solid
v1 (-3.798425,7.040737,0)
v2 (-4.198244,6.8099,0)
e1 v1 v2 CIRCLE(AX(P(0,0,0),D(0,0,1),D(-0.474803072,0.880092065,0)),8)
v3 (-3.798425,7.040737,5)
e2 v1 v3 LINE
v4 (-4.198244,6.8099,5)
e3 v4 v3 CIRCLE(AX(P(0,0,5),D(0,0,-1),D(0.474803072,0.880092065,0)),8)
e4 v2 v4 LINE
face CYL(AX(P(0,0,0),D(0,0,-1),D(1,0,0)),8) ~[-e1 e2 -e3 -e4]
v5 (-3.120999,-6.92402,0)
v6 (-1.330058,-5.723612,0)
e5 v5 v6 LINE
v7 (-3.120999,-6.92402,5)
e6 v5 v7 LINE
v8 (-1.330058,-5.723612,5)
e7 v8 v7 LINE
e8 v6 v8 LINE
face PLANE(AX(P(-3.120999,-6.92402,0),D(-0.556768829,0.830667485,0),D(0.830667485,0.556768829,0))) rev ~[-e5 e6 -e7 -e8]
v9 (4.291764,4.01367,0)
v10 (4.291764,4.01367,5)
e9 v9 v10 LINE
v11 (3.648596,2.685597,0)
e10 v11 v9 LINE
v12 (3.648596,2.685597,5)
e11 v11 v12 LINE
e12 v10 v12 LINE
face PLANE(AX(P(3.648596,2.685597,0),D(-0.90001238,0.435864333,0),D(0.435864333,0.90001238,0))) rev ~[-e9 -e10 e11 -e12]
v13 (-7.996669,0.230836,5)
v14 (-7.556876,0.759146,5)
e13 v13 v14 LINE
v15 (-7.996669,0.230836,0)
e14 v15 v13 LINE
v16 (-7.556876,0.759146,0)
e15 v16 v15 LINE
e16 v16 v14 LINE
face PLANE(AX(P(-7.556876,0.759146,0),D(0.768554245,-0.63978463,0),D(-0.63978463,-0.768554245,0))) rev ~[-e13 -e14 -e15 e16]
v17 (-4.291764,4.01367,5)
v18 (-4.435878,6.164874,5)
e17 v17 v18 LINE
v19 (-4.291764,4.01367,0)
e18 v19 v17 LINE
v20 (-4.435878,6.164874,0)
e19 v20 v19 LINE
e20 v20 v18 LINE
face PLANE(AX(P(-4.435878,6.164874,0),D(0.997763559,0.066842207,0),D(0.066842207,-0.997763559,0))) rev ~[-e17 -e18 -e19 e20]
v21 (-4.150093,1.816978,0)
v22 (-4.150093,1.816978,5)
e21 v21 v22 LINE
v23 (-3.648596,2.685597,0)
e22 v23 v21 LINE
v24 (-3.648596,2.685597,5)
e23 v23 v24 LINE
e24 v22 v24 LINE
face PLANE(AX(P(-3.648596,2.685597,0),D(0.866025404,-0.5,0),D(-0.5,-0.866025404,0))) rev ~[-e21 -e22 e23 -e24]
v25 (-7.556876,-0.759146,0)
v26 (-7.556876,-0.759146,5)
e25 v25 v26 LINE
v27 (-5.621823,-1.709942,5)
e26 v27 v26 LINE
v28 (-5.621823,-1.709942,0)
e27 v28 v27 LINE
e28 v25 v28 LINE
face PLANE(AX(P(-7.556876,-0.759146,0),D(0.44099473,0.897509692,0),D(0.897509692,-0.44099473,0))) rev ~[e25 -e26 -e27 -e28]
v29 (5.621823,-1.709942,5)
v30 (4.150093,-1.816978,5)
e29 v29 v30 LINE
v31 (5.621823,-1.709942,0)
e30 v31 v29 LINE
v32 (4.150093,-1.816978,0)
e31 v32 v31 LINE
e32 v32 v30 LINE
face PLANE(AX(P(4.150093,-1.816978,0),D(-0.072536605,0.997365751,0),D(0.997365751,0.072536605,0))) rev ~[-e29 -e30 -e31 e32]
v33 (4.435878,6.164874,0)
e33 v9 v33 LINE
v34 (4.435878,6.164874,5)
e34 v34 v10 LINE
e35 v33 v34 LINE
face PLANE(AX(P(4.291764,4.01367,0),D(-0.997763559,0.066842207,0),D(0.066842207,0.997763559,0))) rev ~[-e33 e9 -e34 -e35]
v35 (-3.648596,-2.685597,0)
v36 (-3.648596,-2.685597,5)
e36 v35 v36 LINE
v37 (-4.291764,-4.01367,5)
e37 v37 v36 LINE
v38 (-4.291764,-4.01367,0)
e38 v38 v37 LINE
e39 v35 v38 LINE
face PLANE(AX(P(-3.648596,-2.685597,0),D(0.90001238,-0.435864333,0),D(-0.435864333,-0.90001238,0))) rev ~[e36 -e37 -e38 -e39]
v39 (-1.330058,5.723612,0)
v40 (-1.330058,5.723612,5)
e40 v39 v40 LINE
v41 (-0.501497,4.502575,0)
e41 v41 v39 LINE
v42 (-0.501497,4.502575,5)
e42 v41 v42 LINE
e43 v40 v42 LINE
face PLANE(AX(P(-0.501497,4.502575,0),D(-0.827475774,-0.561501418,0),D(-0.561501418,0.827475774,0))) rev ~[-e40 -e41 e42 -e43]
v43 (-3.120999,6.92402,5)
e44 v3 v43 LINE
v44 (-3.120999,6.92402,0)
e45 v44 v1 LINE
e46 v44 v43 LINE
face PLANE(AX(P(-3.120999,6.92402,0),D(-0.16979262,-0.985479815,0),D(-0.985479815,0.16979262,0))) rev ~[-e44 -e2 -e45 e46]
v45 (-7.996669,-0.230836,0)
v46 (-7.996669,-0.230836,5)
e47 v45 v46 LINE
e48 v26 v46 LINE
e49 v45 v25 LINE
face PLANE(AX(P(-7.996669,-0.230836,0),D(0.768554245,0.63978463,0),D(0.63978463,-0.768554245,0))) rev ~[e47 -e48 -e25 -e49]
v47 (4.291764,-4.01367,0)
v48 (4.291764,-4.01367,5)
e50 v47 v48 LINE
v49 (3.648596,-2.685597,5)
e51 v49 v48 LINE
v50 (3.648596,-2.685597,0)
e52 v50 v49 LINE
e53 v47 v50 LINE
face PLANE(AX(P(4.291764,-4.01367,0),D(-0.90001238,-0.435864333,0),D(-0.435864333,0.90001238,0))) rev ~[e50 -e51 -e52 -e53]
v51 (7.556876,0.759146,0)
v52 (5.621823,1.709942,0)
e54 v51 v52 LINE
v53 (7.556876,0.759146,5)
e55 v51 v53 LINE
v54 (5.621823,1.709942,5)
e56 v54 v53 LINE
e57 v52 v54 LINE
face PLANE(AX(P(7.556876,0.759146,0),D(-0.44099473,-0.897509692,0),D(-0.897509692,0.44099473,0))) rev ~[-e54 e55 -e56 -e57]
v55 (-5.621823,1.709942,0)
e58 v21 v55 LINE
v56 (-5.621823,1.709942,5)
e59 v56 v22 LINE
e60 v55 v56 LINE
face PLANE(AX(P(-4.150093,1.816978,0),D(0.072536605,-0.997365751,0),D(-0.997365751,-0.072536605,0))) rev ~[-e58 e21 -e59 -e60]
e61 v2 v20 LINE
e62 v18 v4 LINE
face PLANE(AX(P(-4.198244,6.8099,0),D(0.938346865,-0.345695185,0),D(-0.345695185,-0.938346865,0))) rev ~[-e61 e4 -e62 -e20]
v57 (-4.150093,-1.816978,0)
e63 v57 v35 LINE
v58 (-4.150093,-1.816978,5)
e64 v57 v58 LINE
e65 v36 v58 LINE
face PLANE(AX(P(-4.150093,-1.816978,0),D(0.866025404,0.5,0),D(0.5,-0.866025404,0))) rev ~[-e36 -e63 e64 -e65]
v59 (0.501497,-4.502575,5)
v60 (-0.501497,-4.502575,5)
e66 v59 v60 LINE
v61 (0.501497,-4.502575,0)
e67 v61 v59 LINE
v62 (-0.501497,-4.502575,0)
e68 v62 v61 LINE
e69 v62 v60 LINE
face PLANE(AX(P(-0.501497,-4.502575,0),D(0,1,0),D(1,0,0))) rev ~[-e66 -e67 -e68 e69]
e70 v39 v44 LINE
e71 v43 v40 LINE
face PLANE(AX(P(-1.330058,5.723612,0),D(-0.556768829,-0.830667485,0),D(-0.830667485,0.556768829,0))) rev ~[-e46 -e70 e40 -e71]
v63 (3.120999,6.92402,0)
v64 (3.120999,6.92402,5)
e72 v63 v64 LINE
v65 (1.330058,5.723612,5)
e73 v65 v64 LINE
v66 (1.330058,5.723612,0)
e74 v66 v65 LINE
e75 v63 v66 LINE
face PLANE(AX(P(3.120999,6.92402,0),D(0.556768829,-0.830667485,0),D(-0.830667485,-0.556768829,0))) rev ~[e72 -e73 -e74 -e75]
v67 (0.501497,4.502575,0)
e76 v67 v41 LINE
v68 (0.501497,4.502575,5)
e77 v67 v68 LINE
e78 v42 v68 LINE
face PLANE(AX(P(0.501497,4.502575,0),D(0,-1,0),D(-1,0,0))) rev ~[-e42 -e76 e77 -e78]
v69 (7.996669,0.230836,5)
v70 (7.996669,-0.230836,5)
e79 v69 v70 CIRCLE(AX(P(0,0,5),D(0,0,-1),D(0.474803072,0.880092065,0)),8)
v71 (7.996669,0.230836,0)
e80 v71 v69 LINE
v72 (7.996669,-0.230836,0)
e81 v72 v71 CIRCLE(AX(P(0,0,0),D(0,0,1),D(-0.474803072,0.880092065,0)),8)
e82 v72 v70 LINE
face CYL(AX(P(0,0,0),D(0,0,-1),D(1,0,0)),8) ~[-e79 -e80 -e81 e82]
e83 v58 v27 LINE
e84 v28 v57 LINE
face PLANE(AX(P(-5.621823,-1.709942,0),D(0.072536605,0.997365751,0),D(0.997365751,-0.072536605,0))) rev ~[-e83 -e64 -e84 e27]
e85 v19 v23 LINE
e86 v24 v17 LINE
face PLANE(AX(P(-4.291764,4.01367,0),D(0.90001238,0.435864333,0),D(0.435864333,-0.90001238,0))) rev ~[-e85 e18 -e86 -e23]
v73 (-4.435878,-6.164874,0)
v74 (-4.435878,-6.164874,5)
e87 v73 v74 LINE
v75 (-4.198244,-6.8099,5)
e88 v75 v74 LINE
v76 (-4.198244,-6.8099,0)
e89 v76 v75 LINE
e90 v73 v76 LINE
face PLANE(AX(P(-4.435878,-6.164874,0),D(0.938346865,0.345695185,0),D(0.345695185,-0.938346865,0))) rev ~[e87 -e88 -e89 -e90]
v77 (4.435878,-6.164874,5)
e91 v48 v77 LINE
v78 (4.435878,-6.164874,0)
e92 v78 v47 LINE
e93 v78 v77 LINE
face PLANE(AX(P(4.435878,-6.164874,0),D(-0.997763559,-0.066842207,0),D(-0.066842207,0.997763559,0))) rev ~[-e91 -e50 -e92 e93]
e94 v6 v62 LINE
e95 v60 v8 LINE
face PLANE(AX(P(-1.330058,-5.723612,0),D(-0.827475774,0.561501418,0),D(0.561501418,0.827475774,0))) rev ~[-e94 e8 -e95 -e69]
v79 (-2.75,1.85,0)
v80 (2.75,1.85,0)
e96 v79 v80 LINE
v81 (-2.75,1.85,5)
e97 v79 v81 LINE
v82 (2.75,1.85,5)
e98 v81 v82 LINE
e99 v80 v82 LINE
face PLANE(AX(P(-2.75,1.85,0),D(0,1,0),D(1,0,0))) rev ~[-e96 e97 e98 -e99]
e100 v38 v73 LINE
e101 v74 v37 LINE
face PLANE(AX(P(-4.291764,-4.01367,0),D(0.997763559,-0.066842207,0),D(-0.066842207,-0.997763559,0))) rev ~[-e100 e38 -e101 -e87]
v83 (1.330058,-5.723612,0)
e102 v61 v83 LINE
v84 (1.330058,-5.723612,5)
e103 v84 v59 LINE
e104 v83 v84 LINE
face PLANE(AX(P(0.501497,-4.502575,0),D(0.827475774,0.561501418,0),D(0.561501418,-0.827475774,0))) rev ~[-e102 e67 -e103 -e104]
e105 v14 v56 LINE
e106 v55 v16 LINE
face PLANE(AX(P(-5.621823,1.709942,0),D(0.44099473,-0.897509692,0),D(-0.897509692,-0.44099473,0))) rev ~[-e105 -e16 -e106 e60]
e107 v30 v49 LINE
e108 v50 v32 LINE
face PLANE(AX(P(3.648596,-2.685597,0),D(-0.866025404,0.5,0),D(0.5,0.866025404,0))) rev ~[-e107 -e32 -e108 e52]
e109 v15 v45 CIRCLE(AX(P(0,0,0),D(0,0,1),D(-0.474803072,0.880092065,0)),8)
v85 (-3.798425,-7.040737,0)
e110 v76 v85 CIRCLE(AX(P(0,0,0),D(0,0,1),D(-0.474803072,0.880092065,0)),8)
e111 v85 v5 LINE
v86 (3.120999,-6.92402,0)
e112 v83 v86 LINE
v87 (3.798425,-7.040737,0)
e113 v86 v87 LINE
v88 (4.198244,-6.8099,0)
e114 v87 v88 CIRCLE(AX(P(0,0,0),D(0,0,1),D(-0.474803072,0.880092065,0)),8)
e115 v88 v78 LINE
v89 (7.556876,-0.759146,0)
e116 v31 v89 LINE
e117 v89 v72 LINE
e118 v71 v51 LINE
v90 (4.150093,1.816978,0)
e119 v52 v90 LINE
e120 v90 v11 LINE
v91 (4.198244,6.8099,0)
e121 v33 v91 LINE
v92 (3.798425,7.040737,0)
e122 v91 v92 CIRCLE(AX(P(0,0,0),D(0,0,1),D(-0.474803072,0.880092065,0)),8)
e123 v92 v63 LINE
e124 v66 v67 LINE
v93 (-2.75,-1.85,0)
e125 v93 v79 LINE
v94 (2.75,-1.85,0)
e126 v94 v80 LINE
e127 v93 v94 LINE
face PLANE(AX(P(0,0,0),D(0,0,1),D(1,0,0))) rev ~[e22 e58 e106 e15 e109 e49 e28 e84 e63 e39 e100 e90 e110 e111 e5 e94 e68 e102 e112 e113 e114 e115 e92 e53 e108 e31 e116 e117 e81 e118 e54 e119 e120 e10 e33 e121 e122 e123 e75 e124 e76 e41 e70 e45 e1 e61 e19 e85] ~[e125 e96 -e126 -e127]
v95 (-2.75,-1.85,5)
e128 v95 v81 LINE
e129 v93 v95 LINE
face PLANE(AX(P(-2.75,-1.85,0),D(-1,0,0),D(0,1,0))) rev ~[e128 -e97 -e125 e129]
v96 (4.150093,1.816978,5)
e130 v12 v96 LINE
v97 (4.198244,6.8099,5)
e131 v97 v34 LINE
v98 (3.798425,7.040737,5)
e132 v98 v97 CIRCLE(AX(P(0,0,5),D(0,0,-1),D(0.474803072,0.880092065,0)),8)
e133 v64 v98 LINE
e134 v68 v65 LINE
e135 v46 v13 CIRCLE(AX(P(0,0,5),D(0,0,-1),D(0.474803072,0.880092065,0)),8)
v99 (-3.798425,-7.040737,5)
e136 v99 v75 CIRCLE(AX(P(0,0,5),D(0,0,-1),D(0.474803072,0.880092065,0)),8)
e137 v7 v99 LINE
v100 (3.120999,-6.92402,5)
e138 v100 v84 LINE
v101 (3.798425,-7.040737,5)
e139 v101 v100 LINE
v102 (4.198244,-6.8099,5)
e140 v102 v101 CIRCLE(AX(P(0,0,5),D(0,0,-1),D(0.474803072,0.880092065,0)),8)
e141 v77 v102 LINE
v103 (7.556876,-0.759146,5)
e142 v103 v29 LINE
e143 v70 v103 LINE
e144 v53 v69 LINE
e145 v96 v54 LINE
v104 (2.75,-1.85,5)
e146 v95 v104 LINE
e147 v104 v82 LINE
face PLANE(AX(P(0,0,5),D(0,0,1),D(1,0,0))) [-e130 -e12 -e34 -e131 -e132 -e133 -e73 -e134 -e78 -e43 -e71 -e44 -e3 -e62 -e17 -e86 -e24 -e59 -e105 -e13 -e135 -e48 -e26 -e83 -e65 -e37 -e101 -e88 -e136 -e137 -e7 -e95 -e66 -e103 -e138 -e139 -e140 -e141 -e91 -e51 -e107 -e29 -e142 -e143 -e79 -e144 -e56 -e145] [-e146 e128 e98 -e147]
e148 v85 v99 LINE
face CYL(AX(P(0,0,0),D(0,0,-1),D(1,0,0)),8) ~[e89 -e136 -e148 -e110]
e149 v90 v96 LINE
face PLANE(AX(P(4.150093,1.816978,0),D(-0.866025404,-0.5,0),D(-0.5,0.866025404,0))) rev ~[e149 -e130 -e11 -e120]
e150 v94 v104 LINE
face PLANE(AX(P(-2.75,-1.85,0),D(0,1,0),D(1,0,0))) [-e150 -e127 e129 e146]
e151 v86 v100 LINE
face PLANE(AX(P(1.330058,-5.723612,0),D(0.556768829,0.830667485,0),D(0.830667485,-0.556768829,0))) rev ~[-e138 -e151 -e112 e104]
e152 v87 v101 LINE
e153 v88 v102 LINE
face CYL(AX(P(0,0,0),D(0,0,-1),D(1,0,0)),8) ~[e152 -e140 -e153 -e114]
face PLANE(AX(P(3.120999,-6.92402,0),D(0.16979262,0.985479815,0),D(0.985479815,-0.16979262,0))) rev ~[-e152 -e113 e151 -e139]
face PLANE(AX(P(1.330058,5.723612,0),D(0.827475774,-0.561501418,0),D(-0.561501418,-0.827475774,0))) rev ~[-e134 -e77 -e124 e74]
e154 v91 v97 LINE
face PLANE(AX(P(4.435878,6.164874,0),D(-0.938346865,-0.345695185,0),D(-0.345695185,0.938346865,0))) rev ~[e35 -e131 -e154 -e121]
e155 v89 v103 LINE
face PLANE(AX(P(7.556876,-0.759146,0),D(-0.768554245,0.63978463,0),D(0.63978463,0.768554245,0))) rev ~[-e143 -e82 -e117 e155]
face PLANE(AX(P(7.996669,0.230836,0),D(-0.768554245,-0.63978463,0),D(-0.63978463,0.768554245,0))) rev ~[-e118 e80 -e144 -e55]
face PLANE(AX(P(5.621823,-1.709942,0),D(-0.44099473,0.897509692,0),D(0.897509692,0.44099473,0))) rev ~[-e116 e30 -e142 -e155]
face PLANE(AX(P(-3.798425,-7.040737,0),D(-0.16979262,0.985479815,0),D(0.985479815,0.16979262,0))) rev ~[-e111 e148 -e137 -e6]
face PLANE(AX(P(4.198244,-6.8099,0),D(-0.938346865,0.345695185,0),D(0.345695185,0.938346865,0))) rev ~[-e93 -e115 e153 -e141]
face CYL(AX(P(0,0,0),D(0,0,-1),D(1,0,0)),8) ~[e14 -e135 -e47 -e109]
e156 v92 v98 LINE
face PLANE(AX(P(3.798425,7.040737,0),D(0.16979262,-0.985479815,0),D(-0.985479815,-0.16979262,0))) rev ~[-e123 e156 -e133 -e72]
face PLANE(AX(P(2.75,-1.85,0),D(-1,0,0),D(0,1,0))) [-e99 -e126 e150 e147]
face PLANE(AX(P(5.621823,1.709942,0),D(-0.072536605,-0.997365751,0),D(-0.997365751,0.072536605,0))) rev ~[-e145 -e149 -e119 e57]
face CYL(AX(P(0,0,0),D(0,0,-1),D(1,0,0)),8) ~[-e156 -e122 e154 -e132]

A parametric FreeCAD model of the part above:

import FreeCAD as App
import Part
import Sketcher
from FreeCAD import Vector
Q = App.Units.Quantity

doc = App.newDocument("Part")
body = doc.addObject("PartDesign::Body", "Body")

sketch1 = body.newObject("Sketcher::SketchObject", "Sketch")
sketch1.AttachmentSupport = (doc.getObject("XY_Plane"), [""])
sketch1.MapMode = "FlatFace"
sketch1.addGeometry([
    Part.Circle(Vector(0, 0, 0), Vector(0, 0, 1), 8),
    Part.LineSegment(Vector(2.8, -1.9, 0), Vector(-2.8, -1.9, 0)),
    Part.LineSegment(Vector(-2.8, -1.9, 0), Vector(-2.8, 1.9, 0)),
    Part.LineSegment(Vector(-2.8, 1.9, 0), Vector(2.8, 1.9, 0)),
    Part.LineSegment(Vector(2.8, 1.9, 0), Vector(2.8, -1.9, 0)),
], False)
sketch1.addConstraint([
    Sketcher.Constraint("Coincident", 1, 2, 2, 1),
    Sketcher.Constraint("Coincident", 2, 2, 3, 1),
    Sketcher.Constraint("Coincident", 3, 2, 4, 1),
    Sketcher.Constraint("Coincident", 4, 2, 1, 1),
    Sketcher.Constraint("Horizontal", 1),
    Sketcher.Constraint("Vertical", 2),
    Sketcher.Constraint("Horizontal", 3),
    Sketcher.Constraint("Vertical", 4),
    Sketcher.Constraint("Coincident", 0, 3, -1, 1),
    Sketcher.Constraint("Symmetric", 1, 2, 3, 2, -1, 1),
    Sketcher.Constraint("Diameter", 0, Q("16 mm")),
    Sketcher.Constraint("DistanceX", 1, 2, 1, 1, Q("5.5 mm")),
    Sketcher.Constraint("DistanceY", 2, 1, 2, 2, Q("3.7 mm")),
])
pad1 = body.newObject("PartDesign::Pad", "Pad")
pad1.Profile = sketch1
pad1.Length = 5

sketch2 = body.newObject("Sketcher::SketchObject", "Sketch001")
sketch2.AttachmentSupport = (doc.getObject("XY_Plane"), [""])
sketch2.MapMode = "FlatFace"
sketch2.addGeometry([
    Part.LineSegment(Vector(0, 25, 0), Vector(-7.3, 22.2, 0)),
    Part.LineSegment(Vector(-7.3, 22.2, 0), Vector(-3.8, 7, 0)),
    Part.LineSegment(Vector(-3.8, 7, 0), Vector(-3.1, 6.9, 0)),
    Part.LineSegment(Vector(-3.1, 6.9, 0), Vector(-1.3, 5.7, 0)),
    Part.LineSegment(Vector(-1.3, 5.7, 0), Vector(-0.5, 4.5, 0)),
    Part.LineSegment(Vector(-0.5, 4.5, 0), Vector(0.5, 4.5, 0)),
    Part.LineSegment(Vector(0.5, 4.5, 0), Vector(1.3, 5.7, 0)),
    Part.LineSegment(Vector(1.3, 5.7, 0), Vector(3.1, 6.9, 0)),
    Part.LineSegment(Vector(3.1, 6.9, 0), Vector(3.8, 7, 0)),
    Part.LineSegment(Vector(3.8, 7, 0), Vector(7.3, 22.2, 0)),
    Part.LineSegment(Vector(7.3, 22.2, 0), Vector(0, 25, 0)),
], False)
sketch2.addConstraint([
    Sketcher.Constraint("Coincident", 0, 2, 1, 1),
    Sketcher.Constraint("Coincident", 1, 2, 2, 1),
    Sketcher.Constraint("Coincident", 2, 2, 3, 1),
    Sketcher.Constraint("Coincident", 3, 2, 4, 1),
    Sketcher.Constraint("Coincident", 4, 2, 5, 1),
    Sketcher.Constraint("Coincident", 5, 2, 6, 1),
    Sketcher.Constraint("Coincident", 6, 2, 7, 1),
    Sketcher.Constraint("Coincident", 7, 2, 8, 1),
    Sketcher.Constraint("Coincident", 8, 2, 9, 1),
    Sketcher.Constraint("Coincident", 9, 2, 10, 1),
    Sketcher.Constraint("Coincident", 10, 2, 0, 1),
    Sketcher.Constraint("Horizontal", 5),
    Sketcher.Constraint("Symmetric", 3, 2, 6, 2, -2),
    Sketcher.Constraint("Symmetric", 2, 2, 7, 2, -2),
    Sketcher.Constraint("Symmetric", 1, 2, 8, 2, -2),
    Sketcher.Constraint("Symmetric", 0, 2, 9, 2, -2),
    Sketcher.Constraint("PointOnObject", 10, 2, -2),
    Sketcher.Constraint("Equal", 4, 6),
    Sketcher.Constraint("DistanceX", 2, 2, -1, 1, Q("3.120999 mm")),
    Sketcher.Constraint("DistanceX", 2, 2, 4, 2, Q("2.619501 mm")),
    Sketcher.Constraint("Distance", 1, Q("15.586831 mm")),
    Sketcher.Constraint("DistanceY", -1, 1, 2, 2, Q("6.92402 mm")),
    Sketcher.Constraint("DistanceX", 3, 2, -1, 1, Q("1.330058 mm")),
    Sketcher.Constraint("DistanceX", 0, 2, 1, 2, Q("3.533508 mm")),
    Sketcher.Constraint("DistanceY", 4, 2, 1, 2, Q("2.538162 mm")),
    Sketcher.Constraint("DistanceX", 0, 2, 5, 2, Q("7.83343 mm")),
    Sketcher.Constraint("DistanceY", 0, 2, 10, 2, Q("2.730448 mm")),
    Sketcher.Constraint("Distance", 2, Q("0.687407 mm")),
    Sketcher.Constraint("Distance", 3, Q("2.156025 mm")),
])
pocket1 = body.newObject("PartDesign::Pocket", "Pocket")
pocket1.Profile = sketch2
pocket1.Type = "ThroughAll"
pocket1.Reversed = True
doc.recompute()

polarpattern = body.newObject("PartDesign::PolarPattern", "PolarPattern")
polarpattern.Originals = [pocket1]
polarpattern.Axis = (doc.getObject("Z_Axis"), [""])
polarpattern.Angle = 360
polarpattern.Occurrences = 6
body.Tip = polarpattern

doc.recompute()
